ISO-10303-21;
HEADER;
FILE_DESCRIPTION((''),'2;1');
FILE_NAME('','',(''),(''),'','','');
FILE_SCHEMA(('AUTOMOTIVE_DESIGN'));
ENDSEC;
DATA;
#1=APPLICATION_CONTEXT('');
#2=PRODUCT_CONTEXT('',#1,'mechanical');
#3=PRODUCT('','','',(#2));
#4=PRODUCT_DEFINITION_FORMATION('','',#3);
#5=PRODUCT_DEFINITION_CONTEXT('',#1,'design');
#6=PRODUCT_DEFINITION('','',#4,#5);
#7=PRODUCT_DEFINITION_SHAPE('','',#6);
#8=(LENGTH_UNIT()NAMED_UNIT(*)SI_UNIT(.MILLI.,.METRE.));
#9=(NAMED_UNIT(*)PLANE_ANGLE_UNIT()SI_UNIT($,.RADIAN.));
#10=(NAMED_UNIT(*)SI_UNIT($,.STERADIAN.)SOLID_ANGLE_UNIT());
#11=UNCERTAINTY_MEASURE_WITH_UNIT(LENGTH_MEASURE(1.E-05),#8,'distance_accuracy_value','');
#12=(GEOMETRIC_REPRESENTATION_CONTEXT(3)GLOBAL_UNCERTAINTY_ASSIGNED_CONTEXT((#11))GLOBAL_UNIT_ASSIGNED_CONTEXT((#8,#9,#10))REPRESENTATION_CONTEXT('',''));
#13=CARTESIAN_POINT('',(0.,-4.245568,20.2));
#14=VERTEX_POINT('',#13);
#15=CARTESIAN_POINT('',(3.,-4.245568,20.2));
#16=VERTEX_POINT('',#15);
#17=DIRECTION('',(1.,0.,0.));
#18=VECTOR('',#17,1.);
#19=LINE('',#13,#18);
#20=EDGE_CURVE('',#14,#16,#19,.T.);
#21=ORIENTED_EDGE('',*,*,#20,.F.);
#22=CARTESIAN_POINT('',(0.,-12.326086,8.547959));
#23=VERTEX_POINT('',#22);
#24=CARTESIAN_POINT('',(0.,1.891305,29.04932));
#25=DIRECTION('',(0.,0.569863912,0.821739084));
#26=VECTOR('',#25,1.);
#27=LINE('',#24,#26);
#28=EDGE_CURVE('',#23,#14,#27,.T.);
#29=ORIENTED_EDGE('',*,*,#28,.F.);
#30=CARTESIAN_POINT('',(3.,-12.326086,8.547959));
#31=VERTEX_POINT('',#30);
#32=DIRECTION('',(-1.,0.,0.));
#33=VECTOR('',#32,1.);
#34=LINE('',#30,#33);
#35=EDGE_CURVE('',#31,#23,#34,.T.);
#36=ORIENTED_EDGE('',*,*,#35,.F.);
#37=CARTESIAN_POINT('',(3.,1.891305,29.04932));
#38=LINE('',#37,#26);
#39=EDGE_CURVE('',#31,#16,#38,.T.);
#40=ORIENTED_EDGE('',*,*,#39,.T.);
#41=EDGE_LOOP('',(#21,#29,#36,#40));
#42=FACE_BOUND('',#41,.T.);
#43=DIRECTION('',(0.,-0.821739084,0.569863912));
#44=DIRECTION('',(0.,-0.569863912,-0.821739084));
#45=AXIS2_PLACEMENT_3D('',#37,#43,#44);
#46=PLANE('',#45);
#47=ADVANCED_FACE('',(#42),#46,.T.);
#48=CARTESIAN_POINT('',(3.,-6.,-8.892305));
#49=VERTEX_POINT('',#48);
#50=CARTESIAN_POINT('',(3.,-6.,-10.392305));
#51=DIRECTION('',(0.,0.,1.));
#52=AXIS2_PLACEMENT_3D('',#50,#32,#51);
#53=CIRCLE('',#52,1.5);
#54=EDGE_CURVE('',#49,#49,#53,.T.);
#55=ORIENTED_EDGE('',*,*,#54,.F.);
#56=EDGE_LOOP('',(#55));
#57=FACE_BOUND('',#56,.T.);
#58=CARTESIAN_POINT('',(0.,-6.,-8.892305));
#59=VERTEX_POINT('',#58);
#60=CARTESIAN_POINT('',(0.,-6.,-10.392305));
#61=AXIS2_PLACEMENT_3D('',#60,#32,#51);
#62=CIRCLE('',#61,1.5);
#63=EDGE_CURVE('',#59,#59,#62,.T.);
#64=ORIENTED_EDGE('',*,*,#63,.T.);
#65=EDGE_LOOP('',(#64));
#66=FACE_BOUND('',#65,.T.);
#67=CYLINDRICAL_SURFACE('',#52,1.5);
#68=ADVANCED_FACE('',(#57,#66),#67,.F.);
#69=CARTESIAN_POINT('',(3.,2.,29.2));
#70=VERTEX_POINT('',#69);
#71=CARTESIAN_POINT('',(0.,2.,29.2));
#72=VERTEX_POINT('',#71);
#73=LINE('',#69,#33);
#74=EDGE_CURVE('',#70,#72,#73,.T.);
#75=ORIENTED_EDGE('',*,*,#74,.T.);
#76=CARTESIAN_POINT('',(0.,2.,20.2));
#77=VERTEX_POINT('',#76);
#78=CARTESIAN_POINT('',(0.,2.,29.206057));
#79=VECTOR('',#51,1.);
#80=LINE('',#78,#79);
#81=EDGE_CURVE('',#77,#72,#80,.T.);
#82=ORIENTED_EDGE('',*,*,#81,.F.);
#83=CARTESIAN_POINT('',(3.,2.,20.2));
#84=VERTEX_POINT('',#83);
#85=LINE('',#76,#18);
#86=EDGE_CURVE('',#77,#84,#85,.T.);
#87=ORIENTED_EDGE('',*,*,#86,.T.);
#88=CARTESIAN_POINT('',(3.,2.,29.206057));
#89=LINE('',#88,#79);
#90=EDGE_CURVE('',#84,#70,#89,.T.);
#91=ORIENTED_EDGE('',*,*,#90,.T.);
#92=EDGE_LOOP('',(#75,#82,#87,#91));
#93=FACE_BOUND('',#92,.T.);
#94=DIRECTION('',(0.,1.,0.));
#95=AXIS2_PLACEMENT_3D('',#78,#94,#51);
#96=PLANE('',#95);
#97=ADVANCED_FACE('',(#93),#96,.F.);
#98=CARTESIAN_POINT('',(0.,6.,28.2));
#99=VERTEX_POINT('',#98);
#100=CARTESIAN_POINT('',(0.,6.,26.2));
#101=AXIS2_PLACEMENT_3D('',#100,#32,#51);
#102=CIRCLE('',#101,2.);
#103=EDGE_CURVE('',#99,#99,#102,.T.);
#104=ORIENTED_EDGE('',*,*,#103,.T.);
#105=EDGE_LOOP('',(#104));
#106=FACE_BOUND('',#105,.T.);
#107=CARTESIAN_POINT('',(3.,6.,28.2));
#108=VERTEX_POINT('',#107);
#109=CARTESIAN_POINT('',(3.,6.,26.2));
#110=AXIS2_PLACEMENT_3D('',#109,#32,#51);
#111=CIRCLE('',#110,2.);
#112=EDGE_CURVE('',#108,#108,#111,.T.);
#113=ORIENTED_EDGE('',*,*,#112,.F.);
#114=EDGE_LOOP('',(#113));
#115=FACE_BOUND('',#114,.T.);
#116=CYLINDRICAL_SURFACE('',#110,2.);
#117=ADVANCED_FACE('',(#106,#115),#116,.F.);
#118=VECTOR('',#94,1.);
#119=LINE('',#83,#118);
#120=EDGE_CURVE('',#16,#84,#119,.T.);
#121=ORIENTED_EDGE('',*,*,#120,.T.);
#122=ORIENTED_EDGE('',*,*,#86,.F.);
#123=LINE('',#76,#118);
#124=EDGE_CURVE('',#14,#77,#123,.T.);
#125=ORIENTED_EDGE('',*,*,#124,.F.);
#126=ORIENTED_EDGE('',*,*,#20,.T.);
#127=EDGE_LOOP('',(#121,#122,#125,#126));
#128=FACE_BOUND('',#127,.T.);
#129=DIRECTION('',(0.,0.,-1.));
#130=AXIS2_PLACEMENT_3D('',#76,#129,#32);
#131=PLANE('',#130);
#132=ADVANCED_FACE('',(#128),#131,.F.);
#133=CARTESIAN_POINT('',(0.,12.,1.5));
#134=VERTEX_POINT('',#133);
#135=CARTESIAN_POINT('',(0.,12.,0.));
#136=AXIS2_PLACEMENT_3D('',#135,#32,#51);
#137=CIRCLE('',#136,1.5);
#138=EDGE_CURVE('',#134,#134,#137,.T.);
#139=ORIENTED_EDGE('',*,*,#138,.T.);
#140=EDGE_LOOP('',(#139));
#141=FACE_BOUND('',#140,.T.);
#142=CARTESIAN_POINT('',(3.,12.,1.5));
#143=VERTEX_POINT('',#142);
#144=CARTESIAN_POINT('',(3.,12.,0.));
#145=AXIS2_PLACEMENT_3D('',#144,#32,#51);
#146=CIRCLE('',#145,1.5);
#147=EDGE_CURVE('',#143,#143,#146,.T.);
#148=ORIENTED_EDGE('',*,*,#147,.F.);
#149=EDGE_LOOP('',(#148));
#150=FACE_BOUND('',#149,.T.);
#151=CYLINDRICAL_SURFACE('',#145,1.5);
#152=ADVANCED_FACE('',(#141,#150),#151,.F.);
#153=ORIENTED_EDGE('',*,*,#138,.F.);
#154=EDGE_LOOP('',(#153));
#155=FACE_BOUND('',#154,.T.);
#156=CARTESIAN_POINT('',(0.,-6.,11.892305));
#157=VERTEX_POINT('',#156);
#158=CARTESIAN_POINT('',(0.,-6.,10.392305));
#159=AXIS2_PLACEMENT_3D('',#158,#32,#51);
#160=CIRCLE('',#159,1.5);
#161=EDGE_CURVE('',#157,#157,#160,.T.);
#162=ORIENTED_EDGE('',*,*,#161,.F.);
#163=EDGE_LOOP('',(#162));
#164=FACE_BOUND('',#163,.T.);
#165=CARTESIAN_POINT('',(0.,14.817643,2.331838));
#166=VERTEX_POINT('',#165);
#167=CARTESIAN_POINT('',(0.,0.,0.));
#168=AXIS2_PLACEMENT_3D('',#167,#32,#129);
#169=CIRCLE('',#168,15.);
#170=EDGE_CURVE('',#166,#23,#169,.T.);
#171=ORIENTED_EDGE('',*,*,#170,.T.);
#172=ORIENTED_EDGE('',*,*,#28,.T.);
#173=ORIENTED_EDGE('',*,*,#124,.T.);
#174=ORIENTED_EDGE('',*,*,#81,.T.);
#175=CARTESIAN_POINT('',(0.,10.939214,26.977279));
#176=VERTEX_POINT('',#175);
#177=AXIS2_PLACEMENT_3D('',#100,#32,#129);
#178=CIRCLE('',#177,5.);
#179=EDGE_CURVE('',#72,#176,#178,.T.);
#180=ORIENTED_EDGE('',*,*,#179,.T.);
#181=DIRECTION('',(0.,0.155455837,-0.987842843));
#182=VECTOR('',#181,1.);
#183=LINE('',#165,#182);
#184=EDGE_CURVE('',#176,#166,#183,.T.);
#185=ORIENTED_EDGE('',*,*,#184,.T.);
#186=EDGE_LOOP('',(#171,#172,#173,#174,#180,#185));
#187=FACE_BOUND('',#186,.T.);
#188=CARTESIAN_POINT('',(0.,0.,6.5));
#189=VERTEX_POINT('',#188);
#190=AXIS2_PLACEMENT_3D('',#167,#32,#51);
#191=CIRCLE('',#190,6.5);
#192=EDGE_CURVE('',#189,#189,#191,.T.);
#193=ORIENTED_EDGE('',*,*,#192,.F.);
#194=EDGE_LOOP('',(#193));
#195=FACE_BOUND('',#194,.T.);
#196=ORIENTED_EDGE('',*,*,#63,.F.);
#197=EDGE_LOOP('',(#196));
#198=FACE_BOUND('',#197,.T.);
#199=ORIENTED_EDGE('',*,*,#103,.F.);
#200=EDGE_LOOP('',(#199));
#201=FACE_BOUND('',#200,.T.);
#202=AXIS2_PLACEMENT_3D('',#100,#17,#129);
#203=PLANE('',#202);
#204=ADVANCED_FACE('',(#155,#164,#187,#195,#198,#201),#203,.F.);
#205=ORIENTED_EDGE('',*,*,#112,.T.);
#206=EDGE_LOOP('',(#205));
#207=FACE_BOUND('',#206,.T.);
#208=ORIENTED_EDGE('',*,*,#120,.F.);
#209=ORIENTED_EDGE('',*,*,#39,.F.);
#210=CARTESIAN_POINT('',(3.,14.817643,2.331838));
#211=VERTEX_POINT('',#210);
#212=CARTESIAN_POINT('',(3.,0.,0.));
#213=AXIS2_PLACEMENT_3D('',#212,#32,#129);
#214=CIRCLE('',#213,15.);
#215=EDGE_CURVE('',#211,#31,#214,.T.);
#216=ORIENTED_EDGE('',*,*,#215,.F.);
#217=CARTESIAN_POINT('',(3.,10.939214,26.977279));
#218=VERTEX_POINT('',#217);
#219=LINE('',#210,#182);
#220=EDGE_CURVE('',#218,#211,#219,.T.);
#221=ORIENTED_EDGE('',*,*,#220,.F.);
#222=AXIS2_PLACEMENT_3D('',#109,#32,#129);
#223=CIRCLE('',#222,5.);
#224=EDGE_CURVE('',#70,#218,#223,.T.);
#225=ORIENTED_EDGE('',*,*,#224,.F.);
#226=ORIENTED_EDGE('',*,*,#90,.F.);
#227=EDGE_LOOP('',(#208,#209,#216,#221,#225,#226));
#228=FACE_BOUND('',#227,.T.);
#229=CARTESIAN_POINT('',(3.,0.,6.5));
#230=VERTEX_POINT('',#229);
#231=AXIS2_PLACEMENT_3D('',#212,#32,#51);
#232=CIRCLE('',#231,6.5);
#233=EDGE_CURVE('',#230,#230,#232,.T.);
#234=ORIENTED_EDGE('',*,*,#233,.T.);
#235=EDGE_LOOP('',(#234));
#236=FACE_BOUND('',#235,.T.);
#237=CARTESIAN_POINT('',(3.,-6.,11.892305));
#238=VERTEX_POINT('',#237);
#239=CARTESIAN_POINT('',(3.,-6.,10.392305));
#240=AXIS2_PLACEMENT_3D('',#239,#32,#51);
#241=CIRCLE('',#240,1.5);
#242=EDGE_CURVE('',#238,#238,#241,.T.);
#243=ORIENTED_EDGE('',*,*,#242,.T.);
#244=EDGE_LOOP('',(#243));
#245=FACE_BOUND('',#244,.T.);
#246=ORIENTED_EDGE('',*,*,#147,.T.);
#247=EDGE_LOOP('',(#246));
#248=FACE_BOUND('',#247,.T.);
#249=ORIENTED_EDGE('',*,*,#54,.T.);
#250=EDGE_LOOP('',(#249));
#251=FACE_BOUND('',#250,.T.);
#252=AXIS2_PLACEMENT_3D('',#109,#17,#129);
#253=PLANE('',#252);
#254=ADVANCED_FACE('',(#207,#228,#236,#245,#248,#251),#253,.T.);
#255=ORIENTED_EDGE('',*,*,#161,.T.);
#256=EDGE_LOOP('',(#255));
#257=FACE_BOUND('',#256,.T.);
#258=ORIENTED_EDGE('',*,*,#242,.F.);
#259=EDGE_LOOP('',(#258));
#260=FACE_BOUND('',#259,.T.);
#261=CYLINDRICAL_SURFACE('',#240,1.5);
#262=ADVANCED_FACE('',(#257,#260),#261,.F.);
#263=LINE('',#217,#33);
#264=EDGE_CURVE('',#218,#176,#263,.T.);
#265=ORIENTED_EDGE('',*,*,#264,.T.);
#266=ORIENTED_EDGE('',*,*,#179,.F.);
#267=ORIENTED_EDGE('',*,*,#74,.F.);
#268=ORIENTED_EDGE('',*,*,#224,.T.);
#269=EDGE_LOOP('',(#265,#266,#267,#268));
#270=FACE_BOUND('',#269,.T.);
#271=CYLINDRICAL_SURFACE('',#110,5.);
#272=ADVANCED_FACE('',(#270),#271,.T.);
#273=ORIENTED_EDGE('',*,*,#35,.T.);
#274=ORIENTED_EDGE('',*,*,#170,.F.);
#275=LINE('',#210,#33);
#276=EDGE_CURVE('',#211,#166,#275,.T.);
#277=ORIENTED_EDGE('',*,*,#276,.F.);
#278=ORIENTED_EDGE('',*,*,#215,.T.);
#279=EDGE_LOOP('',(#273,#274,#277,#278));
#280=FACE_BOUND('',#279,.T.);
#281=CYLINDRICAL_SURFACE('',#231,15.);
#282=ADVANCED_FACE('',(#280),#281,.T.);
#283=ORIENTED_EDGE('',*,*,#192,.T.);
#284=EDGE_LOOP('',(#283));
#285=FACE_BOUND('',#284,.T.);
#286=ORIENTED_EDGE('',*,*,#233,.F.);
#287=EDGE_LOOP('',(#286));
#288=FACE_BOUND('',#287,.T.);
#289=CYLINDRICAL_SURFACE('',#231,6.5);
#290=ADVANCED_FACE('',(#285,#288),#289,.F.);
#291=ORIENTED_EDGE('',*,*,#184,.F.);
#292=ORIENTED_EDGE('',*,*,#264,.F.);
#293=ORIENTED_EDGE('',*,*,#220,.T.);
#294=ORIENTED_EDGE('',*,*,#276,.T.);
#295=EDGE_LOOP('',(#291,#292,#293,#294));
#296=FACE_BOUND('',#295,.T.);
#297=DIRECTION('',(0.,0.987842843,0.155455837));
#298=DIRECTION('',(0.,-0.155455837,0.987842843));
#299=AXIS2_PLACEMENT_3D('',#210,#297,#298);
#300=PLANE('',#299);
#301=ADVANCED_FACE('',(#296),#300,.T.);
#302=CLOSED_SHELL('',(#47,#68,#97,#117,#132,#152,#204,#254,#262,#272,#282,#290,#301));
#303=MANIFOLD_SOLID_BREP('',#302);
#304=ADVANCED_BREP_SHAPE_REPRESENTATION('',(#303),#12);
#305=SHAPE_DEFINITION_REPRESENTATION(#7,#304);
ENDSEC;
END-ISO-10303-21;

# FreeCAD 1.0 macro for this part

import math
import FreeCAD as App
import Part
import Sketcher
from FreeCAD import Vector

doc = App.newDocument("Part")
body = doc.addObject("PartDesign::Body", "Body")

# Sketch on YZ plane
sketch1 = body.newObject("Sketcher::SketchObject", "Sketch")
sketch1.AttachmentSupport = (doc.getObject("YZ_Plane"), [""])
sketch1.MapMode = "FlatFace"
sketch1.addGeometry([
    Part.LineSegment(Vector(-12.326086, 8.547959, 0), Vector(1.891305, 29.04932, 0)),  # 0
    Part.ArcOfCircle(Part.Circle(Vector(6, 26.2, 0), Vector(0, 0, 1), 5), math.radians(8.943234), math.radians(145.259264)),  # 1
    Part.LineSegment(Vector(10.939214, 26.977279, 0), Vector(14.817643, 2.331838, 0)),  # 2
    Part.ArcOfCircle(Part.Circle(Vector(0, 0, 0), Vector(0, 0, 1), 15), math.radians(145.259264), math.radians(368.943234)),  # 3
    Part.Circle(Vector(-6, 10.392305, 0), Vector(0, 0, 1), 1.5),  # 4
    Part.Circle(Vector(-6, -10.392305, 0), Vector(0, 0, 1), 1.5),  # 5
    Part.Circle(Vector(0, 0, 0), Vector(0, 0, 1), 6.5),  # 6
    Part.Circle(Vector(6, 26.2, 0), Vector(0, 0, 1), 2),  # 7
    Part.Circle(Vector(12, 0, 0), Vector(0, 0, 1), 1.5),  # 8
], False)
sketch1.addConstraint([
    Sketcher.Constraint("Tangent", 0, 2, 1, 2),
    Sketcher.Constraint("Tangent", 1, 1, 2, 1),
    Sketcher.Constraint("Tangent", 2, 2, 3, 2),
    Sketcher.Constraint("Tangent", 3, 1, 0, 1),
    Sketcher.Constraint("Coincident", 3, 3, -1, 1),
    Sketcher.Constraint("Coincident", 6, 3, -1, 1),
    Sketcher.Constraint("Coincident", 7, 3, 1, 3),
    Sketcher.Constraint("Equal", 4, 5),
    Sketcher.Constraint("Equal", 5, 8),
    Sketcher.Constraint("Symmetric", 4, 3, 5, 3, -1),
    Sketcher.Constraint("PointOnObject", 8, 3, -1),
    Sketcher.Constraint("Diameter", 4, 3.0),
    Sketcher.Constraint("Diameter", 6, 13.0),
    Sketcher.Constraint("Diameter", 7, 4.0),
    Sketcher.Constraint("Radius", 1, 5.0),
    Sketcher.Constraint("Radius", 3, 15.0),
    Sketcher.Constraint("DistanceX", -1, 1, 1, 3, 6.0),
    Sketcher.Constraint("DistanceX", 4, 3, -1, 1, 6.0),
    Sketcher.Constraint("DistanceX", -1, 1, 8, 3, 12.0),
    Sketcher.Constraint("DistanceY", -1, 1, 1, 3, 26.2),
    Sketcher.Constraint("DistanceY", 5, 3, 4, 3, 20.78461),
])
pad1 = body.newObject("PartDesign::Pad", "Pad")
pad1.Profile = sketch1
pad1.Length = 3

# Sketch on YZ plane
sketch2 = body.newObject("Sketcher::SketchObject", "Sketch001")
sketch2.AttachmentSupport = (doc.getObject("YZ_Plane"), [""])
sketch2.MapMode = "FlatFace"
sketch2.AttachmentOffset = App.Placement(Vector(0, 0, 3), App.Rotation())
sketch2.addGeometry([
    Part.LineSegment(Vector(2, 20.2, 0), Vector(2, 29.206057, 0)),
    Part.LineSegment(Vector(2, 29.206057, 0), Vector(-4.245568, 20.2, 0)),
    Part.LineSegment(Vector(-4.245568, 20.2, 0), Vector(2, 20.2, 0)),
], False)
sketch2.addConstraint([
    Sketcher.Constraint("Coincident", 0, 2, 1, 1),
    Sketcher.Constraint("Coincident", 1, 2, 2, 1),
    Sketcher.Constraint("Coincident", 2, 2, 0, 1),
    Sketcher.Constraint("Vertical", 0),
    Sketcher.Constraint("Horizontal", 2),
    Sketcher.Constraint("DistanceX", -1, 1, 0, 2, 2.0),
    Sketcher.Constraint("DistanceY", -1, 1, 1, 2, 20.2),
    Sketcher.Constraint("DistanceX", 2, 1, 2, 2, 6.245568),
    Sketcher.Constraint("DistanceY", 0, 1, 0, 2, 9.006057),
])
pocket1 = body.newObject("PartDesign::Pocket", "Pocket")
pocket1.Profile = sketch2
pocket1.Type = "ThroughAll"

doc.recompute()
